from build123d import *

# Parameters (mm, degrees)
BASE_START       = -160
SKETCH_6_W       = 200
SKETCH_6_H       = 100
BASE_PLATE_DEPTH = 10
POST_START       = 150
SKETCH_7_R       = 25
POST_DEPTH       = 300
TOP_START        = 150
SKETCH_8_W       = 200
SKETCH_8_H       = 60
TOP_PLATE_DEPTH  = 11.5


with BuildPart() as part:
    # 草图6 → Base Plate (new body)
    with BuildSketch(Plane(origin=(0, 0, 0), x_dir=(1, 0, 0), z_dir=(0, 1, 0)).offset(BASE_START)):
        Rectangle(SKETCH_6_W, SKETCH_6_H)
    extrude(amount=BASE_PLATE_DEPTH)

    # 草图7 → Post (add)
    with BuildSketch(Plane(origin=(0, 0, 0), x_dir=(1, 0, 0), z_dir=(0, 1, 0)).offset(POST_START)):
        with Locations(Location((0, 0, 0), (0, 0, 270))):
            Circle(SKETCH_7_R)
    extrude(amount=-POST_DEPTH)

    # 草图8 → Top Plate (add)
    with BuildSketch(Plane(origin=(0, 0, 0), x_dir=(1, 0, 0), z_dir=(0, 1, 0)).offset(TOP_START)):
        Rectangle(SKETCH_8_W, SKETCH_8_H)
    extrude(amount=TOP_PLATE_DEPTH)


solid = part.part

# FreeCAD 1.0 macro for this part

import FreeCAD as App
import Part
import Sketcher
from FreeCAD import Vector
Q = App.Units.Quantity


def add_polygon(sketch, points):
    """Adds a closed chain of lines whose ends are joined by coincident constraints."""
    first, n = sketch.GeometryCount, len(points)
    for a, b in zip(points, points[1:] + points[:1]):
        sketch.addGeometry(Part.LineSegment(App.Vector(*a, 0), App.Vector(*b, 0)), False)
    for i in range(n):
        sketch.addConstraint(Sketcher.Constraint("Coincident", first + i, 2, first + (i + 1) % n, 1))

doc = App.newDocument("Part")
body = doc.addObject("PartDesign::Body", "Body")

# Sketch on XZ plane
sketch1 = body.newObject("Sketcher::SketchObject", "Sketch")
sketch1.AttachmentSupport = (doc.getObject("XZ_Plane"), [""])
sketch1.MapMode = "FlatFace"
sketch1.AttachmentOffset = App.Placement(Vector(0, 0, 160), App.Rotation())
add_polygon(sketch1, [(-100, -50), (-100, 50), (100, 50), (100, -50)])  # lines 0-3
sketch1.addConstraint(Sketcher.Constraint("Vertical", 0))
sketch1.addConstraint(Sketcher.Constraint("Horizontal", 1))
sketch1.addConstraint(Sketcher.Constraint("Vertical", 2))
sketch1.addConstraint(Sketcher.Constraint("Horizontal", 3))
sketch1.addConstraint(Sketcher.Constraint("Symmetric", 0, 2, 2, 2, -1, 1))
sketch1.addConstraint(Sketcher.Constraint("DistanceX", 1, 1, 1, 2, Q("200 mm")))
sketch1.addConstraint(Sketcher.Constraint("DistanceY", 0, 1, 0, 2, Q("100 mm")))
pad1 = body.newObject("PartDesign::Pad", "Pad")
pad1.Profile = sketch1
pad1.Length = 10
pad1.Reversed = True

# Sketch on XZ plane
sketch2 = body.newObject("Sketcher::SketchObject", "Sketch001")
sketch2.AttachmentSupport = (doc.getObject("XZ_Plane"), [""])
sketch2.MapMode = "FlatFace"
sketch2.AttachmentOffset = App.Placement(Vector(0, 0, -150), App.Rotation())
sketch2.addGeometry(Part.Circle(Vector(0, 0, 0), Vector(0, 0, 1), 25), False)
sketch2.addConstraint(Sketcher.Constraint("Coincident", 0, 3, -1, 1))
sketch2.addConstraint(Sketcher.Constraint("Diameter", 0, Q("50 mm")))
pad2 = body.newObject("PartDesign::Pad", "Pad001")
pad2.Profile = sketch2
pad2.Length = 300

# Sketch on XZ plane
sketch3 = body.newObject("Sketcher::SketchObject", "Sketch002")
sketch3.AttachmentSupport = (doc.getObject("XZ_Plane"), [""])
sketch3.MapMode = "FlatFace"
sketch3.AttachmentOffset = App.Placement(Vector(0, 0, -150), App.Rotation())
add_polygon(sketch3, [(-100, -30), (-100, 30), (100, 30), (100, -30)])  # lines 0-3
sketch3.addConstraint(Sketcher.Constraint("Vertical", 0))
sketch3.addConstraint(Sketcher.Constraint("Horizontal", 1))
sketch3.addConstraint(Sketcher.Constraint("Vertical", 2))
sketch3.addConstraint(Sketcher.Constraint("Horizontal", 3))
sketch3.addConstraint(Sketcher.Constraint("Symmetric", 0, 2, 2, 2, -1, 1))
sketch3.addConstraint(Sketcher.Constraint("DistanceX", 1, 1, 1, 2, Q("200 mm")))
sketch3.addConstraint(Sketcher.Constraint("DistanceY", 0, 1, 0, 2, Q("60 mm")))
pad3 = body.newObject("PartDesign::Pad", "Pad002")
pad3.Profile = sketch3
pad3.Length = 11.5
pad3.Reversed = True

doc.recompute()
